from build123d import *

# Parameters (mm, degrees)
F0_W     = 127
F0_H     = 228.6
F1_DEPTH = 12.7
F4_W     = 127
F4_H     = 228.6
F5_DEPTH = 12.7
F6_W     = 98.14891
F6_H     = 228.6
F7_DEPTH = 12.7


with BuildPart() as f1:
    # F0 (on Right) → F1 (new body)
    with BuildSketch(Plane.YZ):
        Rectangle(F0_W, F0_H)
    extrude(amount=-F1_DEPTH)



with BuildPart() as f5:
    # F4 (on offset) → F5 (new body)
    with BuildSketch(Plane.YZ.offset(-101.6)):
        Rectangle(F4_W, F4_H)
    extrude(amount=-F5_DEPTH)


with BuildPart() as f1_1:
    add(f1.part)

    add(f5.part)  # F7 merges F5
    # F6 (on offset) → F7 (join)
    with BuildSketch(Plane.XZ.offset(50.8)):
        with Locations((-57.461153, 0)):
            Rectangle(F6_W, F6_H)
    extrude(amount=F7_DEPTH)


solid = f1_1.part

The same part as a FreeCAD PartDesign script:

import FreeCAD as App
import Part
import Sketcher
from FreeCAD import Vector
Q = App.Units.Quantity


def add_polygon(sketch, points):
    """Adds a closed chain of lines whose ends are joined by coincident constraints."""
    first, n = sketch.GeometryCount, len(points)
    for a, b in zip(points, points[1:] + points[:1]):
        sketch.addGeometry(Part.LineSegment(App.Vector(*a, 0), App.Vector(*b, 0)), False)
    for i in range(n):
        sketch.addConstraint(Sketcher.Constraint("Coincident", first + i, 2, first + (i + 1) % n, 1))

doc = App.newDocument("Part")
body = doc.addObject("PartDesign::Body", "Body")

sketch1 = body.newObject("Sketcher::SketchObject", "Sketch")
sketch1.AttachmentSupport = (doc.getObject("YZ_Plane"), [""])
sketch1.MapMode = "FlatFace"
add_polygon(sketch1, [(-64, 114), (-64, -114), (64, -114), (64, 114)])
sketch1.addConstraint([
    Sketcher.Constraint("Vertical", 0),
    Sketcher.Constraint("Horizontal", 1),
    Sketcher.Constraint("Vertical", 2),
    Sketcher.Constraint("Horizontal", 3),
    Sketcher.Constraint("Symmetric", 0, 2, 2, 2, -1, 1),
    Sketcher.Constraint("DistanceX", 1, 1, 1, 2, Q("5 in")),
    Sketcher.Constraint("DistanceY", 0, 2, 0, 1, Q("9 in")),
])
pad1 = body.newObject("PartDesign::Pad", "Pad")
pad1.Profile = sketch1
pad1.Length = Q("0.5 in")
pad1.Reversed = True
body2 = doc.addObject("PartDesign::Body", "Body001")

sketch2 = body2.newObject("Sketcher::SketchObject", "Sketch001")
sketch2.AttachmentSupport = (doc.getObject("YZ_Plane001"), [""])
sketch2.MapMode = "FlatFace"
sketch2.AttachmentOffset = App.Placement(Vector(0, 0, -4 * 25.4), App.Rotation())
add_polygon(sketch2, [(-64, 114), (-64, -114), (64, -114), (64, 114)])
sketch2.addConstraint([
    Sketcher.Constraint("Vertical", 0),
    Sketcher.Constraint("Horizontal", 1),
    Sketcher.Constraint("Vertical", 2),
    Sketcher.Constraint("Horizontal", 3),
    Sketcher.Constraint("Symmetric", 0, 2, 2, 2, -1, 1),
    Sketcher.Constraint("DistanceX", 1, 1, 1, 2, Q("5 in")),
    Sketcher.Constraint("DistanceY", 0, 2, 0, 1, Q("9 in")),
])
pad2 = body2.newObject("PartDesign::Pad", "Pad001")
pad2.Profile = sketch2
pad2.Length = Q("0.5 in")
pad2.Reversed = True
body.AllowCompound = True
doc.recompute()

boolean = body.newObject("PartDesign::Boolean", "Boolean")
boolean.Type = "Fuse"
boolean.addObjects([body2])

sketch3 = body.newObject("Sketcher::SketchObject", "Sketch002")
sketch3.AttachmentSupport = (doc.getObject("XZ_Plane"), [""])
sketch3.MapMode = "FlatFace"
sketch3.AttachmentOffset = App.Placement(Vector(0, 0, 2 * 25.4), App.Rotation())
add_polygon(sketch3, [(-107, 114), (-107, -114), (-8, -114), (-8, 114)])
sketch3.addConstraint([
    Sketcher.Constraint("Vertical", 0),
    Sketcher.Constraint("Horizontal", 1),
    Sketcher.Constraint("Vertical", 2),
    Sketcher.Constraint("Horizontal", 3),
    Sketcher.Constraint("DistanceY", 0, 2, 0, 1, Q("9 in")),
    Sketcher.Constraint("DistanceY", 0, 2, -1, 1, Q("4.5 in")),
    Sketcher.Constraint("DistanceX", 1, 1, 1, 2, 98.14891),
    Sketcher.Constraint("DistanceX", 1, 2, -1, 1, 8.386698),
])
pad3 = body.newObject("PartDesign::Pad", "Pad002")
pad3.Profile = sketch3
pad3.Length = Q("0.5 in")

doc.recompute()
